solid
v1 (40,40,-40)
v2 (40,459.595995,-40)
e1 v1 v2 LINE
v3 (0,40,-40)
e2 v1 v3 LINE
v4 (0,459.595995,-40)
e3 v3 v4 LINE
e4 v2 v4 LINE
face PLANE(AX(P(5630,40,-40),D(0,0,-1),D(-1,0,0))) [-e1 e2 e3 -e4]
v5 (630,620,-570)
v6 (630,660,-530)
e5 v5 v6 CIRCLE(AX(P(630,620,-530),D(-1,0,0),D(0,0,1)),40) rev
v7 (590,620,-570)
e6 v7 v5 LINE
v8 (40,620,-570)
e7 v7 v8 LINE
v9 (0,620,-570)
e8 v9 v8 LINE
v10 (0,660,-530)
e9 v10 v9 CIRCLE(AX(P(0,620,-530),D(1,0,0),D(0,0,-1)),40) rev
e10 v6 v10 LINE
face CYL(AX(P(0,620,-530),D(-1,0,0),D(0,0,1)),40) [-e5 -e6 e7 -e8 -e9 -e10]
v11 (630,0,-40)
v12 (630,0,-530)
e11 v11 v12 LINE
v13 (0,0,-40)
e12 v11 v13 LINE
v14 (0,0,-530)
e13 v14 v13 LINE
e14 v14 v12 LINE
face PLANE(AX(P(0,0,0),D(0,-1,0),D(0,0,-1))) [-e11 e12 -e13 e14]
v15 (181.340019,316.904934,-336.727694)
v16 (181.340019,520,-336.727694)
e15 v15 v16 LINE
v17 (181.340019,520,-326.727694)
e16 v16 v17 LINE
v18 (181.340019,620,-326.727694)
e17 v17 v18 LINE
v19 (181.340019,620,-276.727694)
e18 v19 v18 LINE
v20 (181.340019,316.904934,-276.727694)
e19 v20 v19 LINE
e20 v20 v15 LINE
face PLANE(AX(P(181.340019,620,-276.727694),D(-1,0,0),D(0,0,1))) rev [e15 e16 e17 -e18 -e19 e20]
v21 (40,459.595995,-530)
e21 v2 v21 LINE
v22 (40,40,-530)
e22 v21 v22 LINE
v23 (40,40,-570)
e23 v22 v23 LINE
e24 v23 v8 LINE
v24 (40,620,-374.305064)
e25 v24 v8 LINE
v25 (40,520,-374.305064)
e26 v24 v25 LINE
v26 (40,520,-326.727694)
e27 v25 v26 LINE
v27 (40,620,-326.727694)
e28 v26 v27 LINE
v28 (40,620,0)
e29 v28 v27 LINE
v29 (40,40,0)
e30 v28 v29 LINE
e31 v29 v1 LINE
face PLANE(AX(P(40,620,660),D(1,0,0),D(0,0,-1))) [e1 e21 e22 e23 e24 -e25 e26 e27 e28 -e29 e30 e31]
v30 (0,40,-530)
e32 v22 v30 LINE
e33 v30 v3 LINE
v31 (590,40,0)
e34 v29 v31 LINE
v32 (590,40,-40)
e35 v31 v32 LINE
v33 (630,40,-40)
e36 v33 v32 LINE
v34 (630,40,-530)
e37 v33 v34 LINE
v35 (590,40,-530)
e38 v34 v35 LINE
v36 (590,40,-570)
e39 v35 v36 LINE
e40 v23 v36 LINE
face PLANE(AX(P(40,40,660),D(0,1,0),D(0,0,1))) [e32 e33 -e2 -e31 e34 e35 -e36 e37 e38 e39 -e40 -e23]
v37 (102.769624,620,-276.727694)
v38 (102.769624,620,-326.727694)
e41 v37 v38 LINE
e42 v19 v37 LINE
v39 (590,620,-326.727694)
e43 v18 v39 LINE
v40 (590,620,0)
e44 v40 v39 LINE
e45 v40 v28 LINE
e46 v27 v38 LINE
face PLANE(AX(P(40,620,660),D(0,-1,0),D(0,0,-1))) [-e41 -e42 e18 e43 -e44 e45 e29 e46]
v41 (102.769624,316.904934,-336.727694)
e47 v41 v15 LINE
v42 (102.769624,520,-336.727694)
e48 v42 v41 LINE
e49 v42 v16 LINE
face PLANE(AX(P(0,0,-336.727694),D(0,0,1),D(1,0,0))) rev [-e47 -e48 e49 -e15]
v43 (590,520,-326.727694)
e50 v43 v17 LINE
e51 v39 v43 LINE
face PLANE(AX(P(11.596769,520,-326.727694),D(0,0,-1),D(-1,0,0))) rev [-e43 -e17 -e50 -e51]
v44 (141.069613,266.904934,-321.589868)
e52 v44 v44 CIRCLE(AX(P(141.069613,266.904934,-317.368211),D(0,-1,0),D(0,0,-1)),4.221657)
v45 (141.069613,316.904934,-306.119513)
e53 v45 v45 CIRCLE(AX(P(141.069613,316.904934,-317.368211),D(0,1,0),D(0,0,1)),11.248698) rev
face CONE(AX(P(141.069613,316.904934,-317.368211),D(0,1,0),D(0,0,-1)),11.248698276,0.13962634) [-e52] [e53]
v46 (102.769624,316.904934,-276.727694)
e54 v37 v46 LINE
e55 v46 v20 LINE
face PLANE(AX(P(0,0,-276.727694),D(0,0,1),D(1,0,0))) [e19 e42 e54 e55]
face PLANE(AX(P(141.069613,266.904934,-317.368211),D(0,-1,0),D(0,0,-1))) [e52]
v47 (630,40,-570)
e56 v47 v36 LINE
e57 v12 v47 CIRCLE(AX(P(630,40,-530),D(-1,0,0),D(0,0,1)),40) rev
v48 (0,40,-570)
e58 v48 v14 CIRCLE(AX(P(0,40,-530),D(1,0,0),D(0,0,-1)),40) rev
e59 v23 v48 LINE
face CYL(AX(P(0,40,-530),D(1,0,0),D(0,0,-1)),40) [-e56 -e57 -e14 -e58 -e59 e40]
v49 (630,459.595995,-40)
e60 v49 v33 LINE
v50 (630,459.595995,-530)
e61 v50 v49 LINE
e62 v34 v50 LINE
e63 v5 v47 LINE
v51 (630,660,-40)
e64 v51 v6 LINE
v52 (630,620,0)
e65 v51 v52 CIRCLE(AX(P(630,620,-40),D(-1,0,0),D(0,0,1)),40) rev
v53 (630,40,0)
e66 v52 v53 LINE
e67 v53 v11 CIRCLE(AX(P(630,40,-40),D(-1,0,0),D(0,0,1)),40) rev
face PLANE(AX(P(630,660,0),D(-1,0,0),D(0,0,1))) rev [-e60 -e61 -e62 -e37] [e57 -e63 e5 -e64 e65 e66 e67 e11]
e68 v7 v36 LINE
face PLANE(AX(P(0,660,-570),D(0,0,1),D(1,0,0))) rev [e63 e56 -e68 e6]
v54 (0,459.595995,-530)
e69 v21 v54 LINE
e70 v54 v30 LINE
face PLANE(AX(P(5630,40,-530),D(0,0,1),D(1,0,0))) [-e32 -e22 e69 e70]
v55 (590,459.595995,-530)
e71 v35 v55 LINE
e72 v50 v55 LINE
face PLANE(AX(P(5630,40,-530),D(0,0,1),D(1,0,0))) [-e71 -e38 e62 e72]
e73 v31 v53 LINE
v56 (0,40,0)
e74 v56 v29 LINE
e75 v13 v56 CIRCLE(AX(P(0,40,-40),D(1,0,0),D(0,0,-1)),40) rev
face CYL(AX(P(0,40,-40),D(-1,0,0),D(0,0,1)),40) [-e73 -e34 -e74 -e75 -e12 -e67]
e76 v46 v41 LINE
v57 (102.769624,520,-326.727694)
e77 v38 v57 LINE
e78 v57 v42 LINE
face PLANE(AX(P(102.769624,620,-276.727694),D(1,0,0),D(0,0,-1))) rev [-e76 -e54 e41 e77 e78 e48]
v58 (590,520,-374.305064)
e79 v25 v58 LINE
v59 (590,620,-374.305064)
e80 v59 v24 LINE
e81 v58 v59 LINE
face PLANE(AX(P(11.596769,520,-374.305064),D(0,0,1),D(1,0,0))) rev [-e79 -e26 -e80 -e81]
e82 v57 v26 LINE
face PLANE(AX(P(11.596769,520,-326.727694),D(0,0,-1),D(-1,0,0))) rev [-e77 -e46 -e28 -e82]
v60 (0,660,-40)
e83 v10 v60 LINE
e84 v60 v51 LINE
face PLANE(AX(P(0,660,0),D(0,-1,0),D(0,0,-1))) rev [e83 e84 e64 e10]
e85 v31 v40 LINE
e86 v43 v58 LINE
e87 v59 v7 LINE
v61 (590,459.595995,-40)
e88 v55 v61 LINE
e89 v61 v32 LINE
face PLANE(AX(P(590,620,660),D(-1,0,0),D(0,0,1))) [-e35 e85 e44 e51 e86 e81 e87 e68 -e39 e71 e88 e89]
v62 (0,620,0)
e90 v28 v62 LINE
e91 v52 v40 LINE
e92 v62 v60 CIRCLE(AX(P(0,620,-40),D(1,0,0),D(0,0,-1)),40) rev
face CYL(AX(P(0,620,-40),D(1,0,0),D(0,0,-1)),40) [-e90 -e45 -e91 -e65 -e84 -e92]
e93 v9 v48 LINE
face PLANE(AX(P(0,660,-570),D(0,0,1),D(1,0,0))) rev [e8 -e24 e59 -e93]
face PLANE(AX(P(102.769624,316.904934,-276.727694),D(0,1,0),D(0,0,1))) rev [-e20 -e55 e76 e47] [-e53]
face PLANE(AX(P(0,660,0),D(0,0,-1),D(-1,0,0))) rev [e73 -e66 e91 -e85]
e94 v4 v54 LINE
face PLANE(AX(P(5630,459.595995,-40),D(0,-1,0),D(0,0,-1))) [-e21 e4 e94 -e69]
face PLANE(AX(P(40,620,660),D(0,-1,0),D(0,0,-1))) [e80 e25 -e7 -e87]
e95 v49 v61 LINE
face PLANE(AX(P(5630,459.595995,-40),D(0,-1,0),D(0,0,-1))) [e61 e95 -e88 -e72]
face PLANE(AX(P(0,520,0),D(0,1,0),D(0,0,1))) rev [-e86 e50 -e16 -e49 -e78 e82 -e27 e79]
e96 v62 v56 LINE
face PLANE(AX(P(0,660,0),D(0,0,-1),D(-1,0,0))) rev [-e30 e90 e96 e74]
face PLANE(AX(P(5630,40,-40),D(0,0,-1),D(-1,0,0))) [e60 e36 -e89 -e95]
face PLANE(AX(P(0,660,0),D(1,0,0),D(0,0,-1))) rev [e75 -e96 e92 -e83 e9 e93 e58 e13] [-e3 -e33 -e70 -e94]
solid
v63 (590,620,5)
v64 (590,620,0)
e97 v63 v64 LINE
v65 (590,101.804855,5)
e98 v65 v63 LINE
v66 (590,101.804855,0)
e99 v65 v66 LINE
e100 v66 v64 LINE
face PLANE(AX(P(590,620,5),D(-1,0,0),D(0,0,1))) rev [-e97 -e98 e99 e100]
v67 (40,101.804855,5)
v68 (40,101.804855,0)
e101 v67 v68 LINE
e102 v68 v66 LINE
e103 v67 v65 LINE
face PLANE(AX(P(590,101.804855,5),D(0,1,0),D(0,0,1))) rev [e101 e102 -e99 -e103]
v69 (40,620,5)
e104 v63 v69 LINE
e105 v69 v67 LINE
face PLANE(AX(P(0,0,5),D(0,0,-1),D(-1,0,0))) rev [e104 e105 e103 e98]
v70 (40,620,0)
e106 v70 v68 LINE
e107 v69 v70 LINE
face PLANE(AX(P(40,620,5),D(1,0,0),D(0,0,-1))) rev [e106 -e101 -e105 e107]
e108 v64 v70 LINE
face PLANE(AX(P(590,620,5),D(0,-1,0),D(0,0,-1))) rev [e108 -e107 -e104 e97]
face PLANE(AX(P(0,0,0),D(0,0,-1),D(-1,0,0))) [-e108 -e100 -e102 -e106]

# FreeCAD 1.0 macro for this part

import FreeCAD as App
import Part
import Sketcher
from FreeCAD import Vector
Q = App.Units.Quantity


def edges_at(feature, points):
    """Names of the edges that pass closest to the given points."""
    edges = feature.Shape.Edges
    near = lambda p: min(range(len(edges)), key=lambda i: edges[i].distToShape(Part.Vertex(*p))[0])
    return sorted({f"Edge{near(p) + 1}" for p in points})


def add_polygon(sketch, points):
    """Adds a closed chain of lines whose ends are joined by coincident constraints."""
    first, n = sketch.GeometryCount, len(points)
    for a, b in zip(points, points[1:] + points[:1]):
        sketch.addGeometry(Part.LineSegment(App.Vector(*a, 0), App.Vector(*b, 0)), False)
    for i in range(n):
        sketch.addConstraint(Sketcher.Constraint("Coincident", first + i, 2, first + (i + 1) % n, 1))

doc = App.newDocument("Part")
body = doc.addObject("PartDesign::Body", "Body")

sketch1 = doc.addObject("Sketcher::SketchObject", "Sketch")
body.addObject(sketch1)
sketch1.AttachmentSupport = (doc.XZ_Plane, [""])
sketch1.MapMode = "FlatFace"
add_polygon(sketch1, [(0, -570), (0, 0), (630, 0), (630, -570)])
sketch1.addConstraint(Sketcher.Constraint("Vertical", 0))
sketch1.addConstraint(Sketcher.Constraint("Horizontal", 1))
sketch1.addConstraint(Sketcher.Constraint("Vertical", 2))
sketch1.addConstraint(Sketcher.Constraint("Horizontal", 3))
sketch1.addConstraint(Sketcher.Constraint("Coincident", 0, 2, -1, 1))
sketch1.addConstraint(Sketcher.Constraint("DistanceX", 1, 1, 1, 2, Q("630 mm")))
sketch1.addConstraint(Sketcher.Constraint("DistanceY", 0, 1, 0, 2, Q("570 mm")))
pad1 = doc.addObject("PartDesign::Pad", "Pad")
body.addObject(pad1)
pad1.Profile = sketch1
pad1.Length = 660
pad1.Reversed = True
doc.recompute()

fillet = doc.addObject("PartDesign::Fillet", "Fillet")
body.addObject(fillet)
fillet.Base = (pad1, edges_at(pad1, [
    (315, 660, -570),
    (315, 0, -570),
    (315, 0, 0),
    (315, 660, 0),
]))
fillet.Radius = 40

sketch2 = doc.addObject("Sketcher::SketchObject", "Sketch001")
body.addObject(sketch2)
sketch2.AttachmentSupport = (doc.XY_Plane, [""])
sketch2.MapMode = "FlatFace"
add_polygon(sketch2, [(40, 620), (40, 40), (590, 40), (590, 620)])
sketch2.addConstraint(Sketcher.Constraint("Vertical", 0))
sketch2.addConstraint(Sketcher.Constraint("Horizontal", 1))
sketch2.addConstraint(Sketcher.Constraint("Vertical", 2))
sketch2.addConstraint(Sketcher.Constraint("Horizontal", 3))
sketch2.addConstraint(Sketcher.Constraint("DistanceX", 1, 1, 1, 2, Q("550 mm")))
sketch2.addConstraint(Sketcher.Constraint("DistanceY", 0, 2, 0, 1, Q("580 mm")))
sketch2.addConstraint(Sketcher.Constraint("DistanceX", -1, 1, 0, 2, Q("40 mm")))
sketch2.addConstraint(Sketcher.Constraint("DistanceY", -1, 1, 0, 2, Q("40 mm")))
pocket1 = doc.addObject("PartDesign::Pocket", "Pocket")
body.addObject(pocket1)
pocket1.Profile = sketch2
pocket1.Type = "ThroughAll"
pocket1.Midplane = True

sketch3 = doc.addObject("Sketcher::SketchObject", "Sketch002")
body.addObject(sketch3)
sketch3.AttachmentSupport = (doc.YZ_Plane, [""])
sketch3.MapMode = "FlatFace"
sketch3.AttachmentOffset = App.Placement(Vector(0, 0, 630), App.Rotation())
add_polygon(sketch3, [(460, -40), (40, -40), (40, -530), (460, -530)])
sketch3.addConstraint(Sketcher.Constraint("Horizontal", 0))
sketch3.addConstraint(Sketcher.Constraint("Vertical", 1))
sketch3.addConstraint(Sketcher.Constraint("Horizontal", 2))
sketch3.addConstraint(Sketcher.Constraint("Vertical", 3))
sketch3.addConstraint(Sketcher.Constraint("DistanceY", 1, 2, 1, 1, Q("490 mm")))
sketch3.addConstraint(Sketcher.Constraint("DistanceX", -1, 1, 0, 2, Q("40 mm")))
sketch3.addConstraint(Sketcher.Constraint("DistanceY", 0, 2, -1, 1, Q("40 mm")))
sketch3.addConstraint(Sketcher.Constraint("DistanceX", 0, 2, 0, 1, Q("419.595995 mm")))
pocket2 = doc.addObject("PartDesign::Pocket", "Pocket001")
body.addObject(pocket2)
pocket2.Profile = sketch3
pocket2.Type = "ThroughAll"
pocket2.Midplane = True

sketch4 = doc.addObject("Sketcher::SketchObject", "Sketch003")
body.addObject(sketch4)
sketch4.AttachmentSupport = (doc.XZ_Plane, [""])
sketch4.MapMode = "FlatFace"
sketch4.AttachmentOffset = App.Placement(Vector(0, 0, -620), App.Rotation())
add_polygon(sketch4, [(613, -374), (613, -327), (12, -327), (12, -374)])
sketch4.addConstraint(Sketcher.Constraint("Vertical", 0))
sketch4.addConstraint(Sketcher.Constraint("Horizontal", 1))
sketch4.addConstraint(Sketcher.Constraint("Vertical", 2))
sketch4.addConstraint(Sketcher.Constraint("Horizontal", 3))
sketch4.addConstraint(Sketcher.Constraint("DistanceY", 0, 1, 0, 2, Q("47.57737 mm")))
sketch4.addConstraint(Sketcher.Constraint("DistanceX", 1, 2, 1, 1, Q("601.346764 mm")))
sketch4.addConstraint(Sketcher.Constraint("DistanceX", -1, 1, 1, 2, Q("11.596769 mm")))
sketch4.addConstraint(Sketcher.Constraint("DistanceY", 0, 2, -1, 1, Q("326.727694 mm")))
pad2 = doc.addObject("PartDesign::Pad", "Pad001")
body.addObject(pad2)
pad2.Profile = sketch4
pad2.Length = 100

sketch5 = doc.addObject("Sketcher::SketchObject", "Sketch004")
body.addObject(sketch5)
sketch5.AttachmentSupport = (doc.XY_Plane, [""])
sketch5.MapMode = "FlatFace"
sketch5.AttachmentOffset = App.Placement(Vector(0, 0, -326.727694), App.Rotation())
add_polygon(sketch5, [(103, 620), (103, 317), (181, 317), (181, 620)])
sketch5.addConstraint(Sketcher.Constraint("Vertical", 0))
sketch5.addConstraint(Sketcher.Constraint("Horizontal", 1))
sketch5.addConstraint(Sketcher.Constraint("Vertical", 2))
sketch5.addConstraint(Sketcher.Constraint("Horizontal", 3))
sketch5.addConstraint(Sketcher.Constraint("DistanceY", -1, 1, 2, 2, Q("620 mm")))
sketch5.addConstraint(Sketcher.Constraint("DistanceX", 1, 1, 1, 2, Q("78.570394 mm")))
sketch5.addConstraint(Sketcher.Constraint("DistanceY", 0, 2, 0, 1, Q("303.095066 mm")))
sketch5.addConstraint(Sketcher.Constraint("DistanceX", -1, 1, 1, 2, Q("181.340019 mm")))
pad3 = doc.addObject("PartDesign::Pad", "Pad002")
body.addObject(pad3)
pad3.Profile = sketch5
pad3.Type = "TwoLengths"
pad3.Length = 50
pad3.Length2 = 10

sketch6 = doc.addObject("Sketcher::SketchObject", "Sketch005")
body.addObject(sketch6)
sketch6.AttachmentSupport = (doc.XZ_Plane, [""])
sketch6.MapMode = "FlatFace"
sketch6.AttachmentOffset = App.Placement(Vector(0, 0, -316.904934), App.Rotation())
sketch6.addGeometry(Part.Circle(Vector(141, -317, 0), Vector(0, 0, 1), 11), False)
sketch6.addConstraint(Sketcher.Constraint("Diameter", 0, Q("22.497397 mm")))
sketch6.addConstraint(Sketcher.Constraint("DistanceY", 0, 3, -1, 1, Q("317.368211 mm")))
sketch6.addConstraint(Sketcher.Constraint("DistanceX", -1, 1, 0, 3, Q("141.069613 mm")))
pad4 = doc.addObject("PartDesign::Pad", "Pad003")
body.addObject(pad4)
pad4.Profile = sketch6
pad4.Length = 50
pad4.TaperAngle = -8
body2 = doc.addObject("PartDesign::Body", "Body001")

sketch7 = doc.addObject("Sketcher::SketchObject", "Sketch006")
body2.addObject(sketch7)
sketch7.AttachmentSupport = (doc.getObject("XY_Plane001"), [""])
sketch7.MapMode = "FlatFace"
add_polygon(sketch7, [(40, 620), (40, 102), (590, 102), (590, 620)])
sketch7.addConstraint(Sketcher.Constraint("Vertical", 0))
sketch7.addConstraint(Sketcher.Constraint("Horizontal", 1))
sketch7.addConstraint(Sketcher.Constraint("Vertical", 2))
sketch7.addConstraint(Sketcher.Constraint("Horizontal", 3))
sketch7.addConstraint(Sketcher.Constraint("DistanceX", 1, 1, 1, 2, Q("550 mm")))
sketch7.addConstraint(Sketcher.Constraint("DistanceX", -1, 1, 0, 2, Q("40 mm")))
sketch7.addConstraint(Sketcher.Constraint("DistanceY", -1, 1, 2, 2, Q("620 mm")))
sketch7.addConstraint(Sketcher.Constraint("DistanceY", 0, 2, 0, 1, Q("518.195145 mm")))
pad5 = doc.addObject("PartDesign::Pad", "Pad004")
body2.addObject(pad5)
pad5.Profile = sketch7
pad5.Length = 5

doc.recompute()
